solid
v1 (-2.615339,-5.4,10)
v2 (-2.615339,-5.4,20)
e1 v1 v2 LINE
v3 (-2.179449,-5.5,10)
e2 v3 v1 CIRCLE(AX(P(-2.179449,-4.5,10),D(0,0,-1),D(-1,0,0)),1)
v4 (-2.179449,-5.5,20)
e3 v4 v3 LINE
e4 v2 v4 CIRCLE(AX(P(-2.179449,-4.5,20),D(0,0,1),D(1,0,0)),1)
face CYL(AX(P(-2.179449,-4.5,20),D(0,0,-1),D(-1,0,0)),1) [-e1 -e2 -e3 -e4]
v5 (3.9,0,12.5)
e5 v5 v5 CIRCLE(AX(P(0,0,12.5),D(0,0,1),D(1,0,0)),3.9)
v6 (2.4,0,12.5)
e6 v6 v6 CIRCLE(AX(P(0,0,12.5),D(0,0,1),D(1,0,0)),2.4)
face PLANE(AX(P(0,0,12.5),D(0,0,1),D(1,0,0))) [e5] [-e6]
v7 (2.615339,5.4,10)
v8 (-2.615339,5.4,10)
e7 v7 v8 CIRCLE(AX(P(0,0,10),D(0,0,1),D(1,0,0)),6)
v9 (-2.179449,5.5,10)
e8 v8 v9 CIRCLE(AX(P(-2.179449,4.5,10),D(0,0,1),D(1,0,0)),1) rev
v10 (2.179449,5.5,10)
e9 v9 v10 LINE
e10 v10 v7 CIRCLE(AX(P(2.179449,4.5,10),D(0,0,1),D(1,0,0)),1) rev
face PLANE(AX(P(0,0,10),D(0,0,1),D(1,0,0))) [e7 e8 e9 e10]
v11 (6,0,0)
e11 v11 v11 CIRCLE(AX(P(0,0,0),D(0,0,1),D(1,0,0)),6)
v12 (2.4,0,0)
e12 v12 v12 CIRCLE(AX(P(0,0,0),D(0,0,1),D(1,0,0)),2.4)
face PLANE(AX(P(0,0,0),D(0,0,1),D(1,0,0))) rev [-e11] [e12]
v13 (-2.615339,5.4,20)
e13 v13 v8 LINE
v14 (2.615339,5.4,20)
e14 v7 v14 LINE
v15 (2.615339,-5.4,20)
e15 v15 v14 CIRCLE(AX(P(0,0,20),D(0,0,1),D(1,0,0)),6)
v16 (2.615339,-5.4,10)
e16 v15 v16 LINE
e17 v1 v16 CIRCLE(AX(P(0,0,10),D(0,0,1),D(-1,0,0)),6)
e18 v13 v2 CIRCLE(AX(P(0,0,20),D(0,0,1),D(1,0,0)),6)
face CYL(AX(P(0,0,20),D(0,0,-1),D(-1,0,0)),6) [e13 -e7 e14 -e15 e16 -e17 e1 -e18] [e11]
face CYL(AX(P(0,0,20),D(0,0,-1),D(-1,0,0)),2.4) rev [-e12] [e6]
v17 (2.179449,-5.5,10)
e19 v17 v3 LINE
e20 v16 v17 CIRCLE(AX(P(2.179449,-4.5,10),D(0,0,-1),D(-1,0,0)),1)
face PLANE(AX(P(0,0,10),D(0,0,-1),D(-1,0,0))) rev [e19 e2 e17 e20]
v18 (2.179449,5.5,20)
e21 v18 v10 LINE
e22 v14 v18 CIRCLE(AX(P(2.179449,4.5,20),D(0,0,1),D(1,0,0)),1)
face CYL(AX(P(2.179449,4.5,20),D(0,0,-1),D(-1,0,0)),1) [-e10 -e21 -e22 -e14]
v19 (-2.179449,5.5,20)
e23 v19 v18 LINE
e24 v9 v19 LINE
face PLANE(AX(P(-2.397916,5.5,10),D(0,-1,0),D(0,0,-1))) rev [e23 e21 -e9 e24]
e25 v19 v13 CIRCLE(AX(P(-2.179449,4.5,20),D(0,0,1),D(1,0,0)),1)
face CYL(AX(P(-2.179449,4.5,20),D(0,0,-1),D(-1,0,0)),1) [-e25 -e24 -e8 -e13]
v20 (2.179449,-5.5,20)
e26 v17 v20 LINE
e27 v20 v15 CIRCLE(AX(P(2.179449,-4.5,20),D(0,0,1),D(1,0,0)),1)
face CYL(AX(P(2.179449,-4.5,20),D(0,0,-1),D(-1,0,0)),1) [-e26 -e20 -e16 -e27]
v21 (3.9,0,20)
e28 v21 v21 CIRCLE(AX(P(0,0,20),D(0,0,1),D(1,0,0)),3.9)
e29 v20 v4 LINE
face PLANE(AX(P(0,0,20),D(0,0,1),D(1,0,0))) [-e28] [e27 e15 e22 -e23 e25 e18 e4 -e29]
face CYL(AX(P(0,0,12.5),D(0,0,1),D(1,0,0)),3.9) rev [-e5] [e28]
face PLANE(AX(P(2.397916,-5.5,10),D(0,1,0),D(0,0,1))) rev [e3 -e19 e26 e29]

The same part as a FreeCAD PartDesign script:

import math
import FreeCAD as App
import Part
import Sketcher
from FreeCAD import Vector


def edges_at(feature, points):
    """Names of the edges that pass closest to the given points."""
    edges = feature.Shape.Edges
    near = lambda p: min(range(len(edges)), key=lambda i: edges[i].distToShape(Part.Vertex(*p))[0])
    return sorted({f"Edge{near(p) + 1}" for p in points})

doc = App.newDocument("Part")
body = doc.addObject("PartDesign::Body", "Body")

# Sketch on XY plane
sketch1 = body.newObject("Sketcher::SketchObject", "Sketch")
sketch1.AttachmentSupport = (doc.getObject("XY_Plane"), [""])
sketch1.MapMode = "FlatFace"
sketch1.addGeometry([
    Part.Circle(Vector(0, 0, 0), Vector(0, 0, 1), 6),
    Part.Circle(Vector(0, 0, 0), Vector(0, 0, 1), 2.4),
], False)
sketch1.addConstraint([
    Sketcher.Constraint("Coincident", 0, 3, -1, 1),
    Sketcher.Constraint("Coincident", 1, 3, -1, 1),
    Sketcher.Constraint("Diameter", 0, 12.0),
    Sketcher.Constraint("Diameter", 1, 4.8),
])
pad1 = body.newObject("PartDesign::Pad", "Pad")
pad1.Profile = sketch1
pad1.Length = 20

# Sketch on XY plane
sketch2 = body.newObject("Sketcher::SketchObject", "Sketch001")
sketch2.AttachmentSupport = (doc.getObject("XY_Plane"), [""])
sketch2.MapMode = "FlatFace"
sketch2.AttachmentOffset = App.Placement(Vector(0, 0, 20), App.Rotation())
sketch2.addGeometry(Part.Circle(Vector(0, 0, 0), Vector(0, 0, 1), 3.9), False)
sketch2.addConstraint([
    Sketcher.Constraint("Coincident", 0, 3, -1, 1),
    Sketcher.Constraint("Diameter", 0, 7.8),
])
pocket1 = body.newObject("PartDesign::Pocket", "Pocket")
pocket1.Profile = sketch2
pocket1.Length = 7.5

# Sketch on XY plane
sketch3 = body.newObject("Sketcher::SketchObject", "Sketch002")
sketch3.AttachmentSupport = (doc.getObject("XY_Plane"), [""])
sketch3.MapMode = "FlatFace"
sketch3.AttachmentOffset = App.Placement(Vector(0, 0, 10), App.Rotation())
sketch3.addGeometry([
    Part.LineSegment(Vector(-2.4, 5.5, 0), Vector(2.4, 5.5, 0)),
    Part.ArcOfCircle(Part.Circle(Vector(0, 0, 0), Vector(0, 0, 1), 6), math.radians(66), math.radians(114)),
    Part.LineSegment(Vector(2.4, -5.5, 0), Vector(-2.4, -5.5, 0)),
    Part.ArcOfCircle(Part.Circle(Vector(0, 0, 0), Vector(0, 0, 1), 6), math.radians(-114), math.radians(-66)),
], False)
sketch3.addConstraint([
    Sketcher.Constraint("Coincident", 0, 1, 1, 2),
    Sketcher.Constraint("Coincident", 1, 1, 0, 2),
    Sketcher.Constraint("Coincident", 2, 1, 3, 2),
    Sketcher.Constraint("Coincident", 3, 1, 2, 2),
    Sketcher.Constraint("Horizontal", 0),
    Sketcher.Constraint("Horizontal", 2),
    Sketcher.Constraint("Coincident", 1, 3, -1, 1),
    Sketcher.Constraint("Coincident", 3, 3, -1, 1),
    Sketcher.Constraint("Equal", 1, 3),
    Sketcher.Constraint("Vertical", 1, 1, 2, 1),
    Sketcher.Constraint("Radius", 1, 6.0),
    Sketcher.Constraint("DistanceY", 2, 1, 1, 1, 11.0),
])
pocket2 = body.newObject("PartDesign::Pocket", "Pocket001")
pocket2.Profile = sketch3
pocket2.Length = 10
pocket2.Reversed = True
doc.recompute()

fillet = body.newObject("PartDesign::Fillet", "Fillet")
fillet.Base = (pocket2, edges_at(pocket2, [
    (-2.398, 5.5, 15),
    (2.398, 5.5, 15),
    (2.398, -5.5, 15),
    (-2.398, -5.5, 15),
]))
fillet.Radius = 1

doc.recompute()
